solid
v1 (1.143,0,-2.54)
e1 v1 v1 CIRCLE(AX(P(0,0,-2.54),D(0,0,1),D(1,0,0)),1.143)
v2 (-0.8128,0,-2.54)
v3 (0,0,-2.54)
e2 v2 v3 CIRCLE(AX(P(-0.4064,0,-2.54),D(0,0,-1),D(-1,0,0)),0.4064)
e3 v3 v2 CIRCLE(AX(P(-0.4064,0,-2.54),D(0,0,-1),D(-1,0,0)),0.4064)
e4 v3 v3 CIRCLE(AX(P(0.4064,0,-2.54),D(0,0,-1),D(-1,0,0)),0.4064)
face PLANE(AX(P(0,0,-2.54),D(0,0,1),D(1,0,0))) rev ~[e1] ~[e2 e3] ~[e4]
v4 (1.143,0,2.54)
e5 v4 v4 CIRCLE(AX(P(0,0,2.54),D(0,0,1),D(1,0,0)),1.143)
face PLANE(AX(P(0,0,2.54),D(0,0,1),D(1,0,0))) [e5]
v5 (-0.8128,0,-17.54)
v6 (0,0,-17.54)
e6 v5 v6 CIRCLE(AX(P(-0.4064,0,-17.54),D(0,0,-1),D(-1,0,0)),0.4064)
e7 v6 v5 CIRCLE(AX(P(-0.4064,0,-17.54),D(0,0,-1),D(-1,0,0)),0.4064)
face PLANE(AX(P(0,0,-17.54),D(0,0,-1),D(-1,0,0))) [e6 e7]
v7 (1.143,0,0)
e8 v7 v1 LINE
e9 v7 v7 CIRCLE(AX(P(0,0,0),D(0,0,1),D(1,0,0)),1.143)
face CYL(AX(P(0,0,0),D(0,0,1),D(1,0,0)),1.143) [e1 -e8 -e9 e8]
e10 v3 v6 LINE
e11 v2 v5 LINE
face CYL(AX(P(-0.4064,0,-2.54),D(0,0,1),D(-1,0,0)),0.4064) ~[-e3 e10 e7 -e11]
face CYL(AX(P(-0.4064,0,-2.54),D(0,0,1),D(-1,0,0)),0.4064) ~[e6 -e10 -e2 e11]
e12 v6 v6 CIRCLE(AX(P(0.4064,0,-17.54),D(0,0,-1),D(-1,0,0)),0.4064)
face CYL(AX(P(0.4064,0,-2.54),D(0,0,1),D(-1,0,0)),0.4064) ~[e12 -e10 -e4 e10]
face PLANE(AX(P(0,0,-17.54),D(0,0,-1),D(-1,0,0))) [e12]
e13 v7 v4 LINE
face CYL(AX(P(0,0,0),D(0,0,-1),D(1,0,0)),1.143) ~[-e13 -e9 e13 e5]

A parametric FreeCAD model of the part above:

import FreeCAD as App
import Part
import Sketcher

V = App.Vector
Q = App.Units.Quantity

doc = App.newDocument("Part")
params = doc.addObject("Spreadsheet::Sheet", "Params")
for row, (alias, value) in enumerate([
    ("sketch1_diameter", "0.09 in"),
    ("pad1_length", "0.2 in"),
    ("sketch2_diameter", "0.032 in"),
    ("pad2_length", "15 mm"),
], start=1):
    params.set(f"A{row}", alias)
    params.set(f"B{row}", "=" + value)
    params.setAlias(f"B{row}", alias)

body = doc.addObject("PartDesign::Body", "Body")

# Sketch on XY plane
sketch1 = doc.addObject("Sketcher::SketchObject", "Sketch")
body.addObject(sketch1)
sketch1.AttachmentSupport = (doc.XY_Plane, [""])
sketch1.MapMode = "FlatFace"
sketch1.addGeometry(Part.Circle(V(0, 0, 0), V(0, 0, 1), 1.143), False)
sketch1.addConstraint(Sketcher.Constraint("Coincident", 0, 3, -1, 1))
sketch1.addConstraint(Sketcher.Constraint("Diameter", 0, Q("0.09 in")))
sketch1.setExpression("Constraints[1]", "Params.sketch1_diameter")
pad1 = doc.addObject("PartDesign::Pad", "Pad")
body.addObject(pad1)
pad1.Profile = sketch1
pad1.setExpression("Length", "Params.pad1_length")
pad1.Midplane = True

# Sketch on XY plane
sketch2 = doc.addObject("Sketcher::SketchObject", "Sketch001")
body.addObject(sketch2)
sketch2.AttachmentSupport = (doc.XY_Plane, [""])
sketch2.MapMode = "FlatFace"
sketch2.AttachmentOffset = App.Placement(V(0, 0, -0.1 * 25.4), App.Rotation())
sketch2.addGeometry(Part.Circle(V(0.4064, 0, 0), V(0, 0, 1), 0.4064), False)
sketch2.addGeometry(Part.Circle(V(-0.4064, 0, 0), V(0, 0, 1), 0.4064), False)
sketch2.addConstraint(Sketcher.Constraint("Equal", 0, 1))
sketch2.addConstraint(Sketcher.Constraint("Symmetric", 0, 3, 1, 3, -1, 1))
sketch2.addConstraint(Sketcher.Constraint("PointOnObject", 0, 3, -1))
sketch2.addConstraint(Sketcher.Constraint("Diameter", 0, Q("0.032 in")))
sketch2.addConstraint(Sketcher.Constraint("DistanceX", 1, 3, 0, 3, Q("0.032 in")))
sketch2.setExpression("Constraints[3]", "Params.sketch2_diameter")
pad2 = doc.addObject("PartDesign::Pad", "Pad001")
body.addObject(pad2)
pad2.Profile = sketch2
pad2.setExpression("Length", "Params.pad2_length")
pad2.Reversed = True

doc.recompute()
